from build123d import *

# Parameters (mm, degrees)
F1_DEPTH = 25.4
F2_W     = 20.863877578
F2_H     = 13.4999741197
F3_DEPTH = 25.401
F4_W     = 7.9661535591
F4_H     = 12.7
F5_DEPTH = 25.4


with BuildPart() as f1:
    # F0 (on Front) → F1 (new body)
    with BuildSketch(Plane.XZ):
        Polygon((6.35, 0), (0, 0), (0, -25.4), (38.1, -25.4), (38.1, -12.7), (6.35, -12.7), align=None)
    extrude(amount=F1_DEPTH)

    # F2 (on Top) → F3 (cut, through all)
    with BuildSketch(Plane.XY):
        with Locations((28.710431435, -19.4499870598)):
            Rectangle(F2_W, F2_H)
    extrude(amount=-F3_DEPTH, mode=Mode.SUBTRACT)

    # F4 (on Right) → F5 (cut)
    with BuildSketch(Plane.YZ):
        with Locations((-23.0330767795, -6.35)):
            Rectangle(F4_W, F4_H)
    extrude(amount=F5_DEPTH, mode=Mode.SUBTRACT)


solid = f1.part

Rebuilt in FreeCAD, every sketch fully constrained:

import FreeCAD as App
import Part
import Sketcher

V = App.Vector
Q = App.Units.Quantity


def add_polygon(sketch, points):
    """Adds a closed chain of lines whose ends are joined by coincident constraints."""
    first, n = sketch.GeometryCount, len(points)
    for a, b in zip(points, points[1:] + points[:1]):
        sketch.addGeometry(Part.LineSegment(App.Vector(*a, 0), App.Vector(*b, 0)), False)
    for i in range(n):
        sketch.addConstraint(Sketcher.Constraint("Coincident", first + i, 2, first + (i + 1) % n, 1))

doc = App.newDocument("Part")
body = doc.addObject("PartDesign::Body", "Body")

# Sketch on XZ plane
sketch1 = body.newObject("Sketcher::SketchObject", "Sketch")
sketch1.AttachmentSupport = (doc.getObject("XZ_Plane"), [""])
sketch1.MapMode = "FlatFace"
add_polygon(sketch1, [(6, 0), (0, 0), (0, -25), (38, -25), (38, -13), (6, -13)])  # lines 0-5
sketch1.addConstraint([
    Sketcher.Constraint("Horizontal", 0),
    Sketcher.Constraint("Vertical", 1),
    Sketcher.Constraint("Horizontal", 2),
    Sketcher.Constraint("Vertical", 3),
    Sketcher.Constraint("Horizontal", 4),
    Sketcher.Constraint("Vertical", 5),
    Sketcher.Constraint("Coincident", 0, 2, -1, 1),
    Sketcher.Constraint("Equal", 3, 5),
    Sketcher.Constraint("DistanceY", 1, 2, 1, 1, Q("1 in")),
    Sketcher.Constraint("DistanceX", 2, 1, 2, 2, Q("1.5 in")),
    Sketcher.Constraint("DistanceX", 0, 2, 0, 1, Q("0.25 in")),
])
pad1 = body.newObject("PartDesign::Pad", "Pad")
pad1.Profile = sketch1
pad1.Length = Q("1 in")

# Sketch on XY plane
sketch2 = body.newObject("Sketcher::SketchObject", "Sketch001")
sketch2.AttachmentSupport = (doc.getObject("XY_Plane"), [""])
sketch2.MapMode = "FlatFace"
add_polygon(sketch2, [(18, -13), (18, -26), (39, -26), (39, -13)])  # lines 0-3
sketch2.addConstraint([
    Sketcher.Constraint("Vertical", 0),
    Sketcher.Constraint("Horizontal", 1),
    Sketcher.Constraint("Vertical", 2),
    Sketcher.Constraint("Horizontal", 3),
    Sketcher.Constraint("DistanceY", 2, 2, -1, 1, Q("0.5 in")),
    Sketcher.Constraint("DistanceX", 1, 1, 1, 2, 20.863878),
    Sketcher.Constraint("DistanceY", 0, 2, 0, 1, 13.499974),
    Sketcher.Constraint("DistanceX", -1, 1, 1, 2, 39.14237),
])
pocket1 = body.newObject("PartDesign::Pocket", "Pocket")
pocket1.Profile = sketch2
pocket1.Type = "ThroughAll"

# Sketch on YZ plane
sketch3 = body.newObject("Sketcher::SketchObject", "Sketch002")
sketch3.AttachmentSupport = (doc.getObject("YZ_Plane"), [""])
sketch3.MapMode = "FlatFace"
add_polygon(sketch3, [(-27, 0), (-27, -13), (-19, -13), (-19, 0)])  # lines 0-3
sketch3.addConstraint([
    Sketcher.Constraint("Vertical", 0),
    Sketcher.Constraint("Horizontal", 1),
    Sketcher.Constraint("Vertical", 2),
    Sketcher.Constraint("Horizontal", 3),
    Sketcher.Constraint("PointOnObject", 2, 2, -1),
    Sketcher.Constraint("DistanceY", 0, 2, 0, 1, Q("0.5 in")),
    Sketcher.Constraint("DistanceX", 1, 2, -1, 1, Q("0.75 in")),
    Sketcher.Constraint("DistanceX", 1, 1, 1, 2, 7.966154),
])
pocket2 = body.newObject("PartDesign::Pocket", "Pocket001")
pocket2.Profile = sketch3
pocket2.Length = Q("1 in")
pocket2.Reversed = True

doc.recompute()
